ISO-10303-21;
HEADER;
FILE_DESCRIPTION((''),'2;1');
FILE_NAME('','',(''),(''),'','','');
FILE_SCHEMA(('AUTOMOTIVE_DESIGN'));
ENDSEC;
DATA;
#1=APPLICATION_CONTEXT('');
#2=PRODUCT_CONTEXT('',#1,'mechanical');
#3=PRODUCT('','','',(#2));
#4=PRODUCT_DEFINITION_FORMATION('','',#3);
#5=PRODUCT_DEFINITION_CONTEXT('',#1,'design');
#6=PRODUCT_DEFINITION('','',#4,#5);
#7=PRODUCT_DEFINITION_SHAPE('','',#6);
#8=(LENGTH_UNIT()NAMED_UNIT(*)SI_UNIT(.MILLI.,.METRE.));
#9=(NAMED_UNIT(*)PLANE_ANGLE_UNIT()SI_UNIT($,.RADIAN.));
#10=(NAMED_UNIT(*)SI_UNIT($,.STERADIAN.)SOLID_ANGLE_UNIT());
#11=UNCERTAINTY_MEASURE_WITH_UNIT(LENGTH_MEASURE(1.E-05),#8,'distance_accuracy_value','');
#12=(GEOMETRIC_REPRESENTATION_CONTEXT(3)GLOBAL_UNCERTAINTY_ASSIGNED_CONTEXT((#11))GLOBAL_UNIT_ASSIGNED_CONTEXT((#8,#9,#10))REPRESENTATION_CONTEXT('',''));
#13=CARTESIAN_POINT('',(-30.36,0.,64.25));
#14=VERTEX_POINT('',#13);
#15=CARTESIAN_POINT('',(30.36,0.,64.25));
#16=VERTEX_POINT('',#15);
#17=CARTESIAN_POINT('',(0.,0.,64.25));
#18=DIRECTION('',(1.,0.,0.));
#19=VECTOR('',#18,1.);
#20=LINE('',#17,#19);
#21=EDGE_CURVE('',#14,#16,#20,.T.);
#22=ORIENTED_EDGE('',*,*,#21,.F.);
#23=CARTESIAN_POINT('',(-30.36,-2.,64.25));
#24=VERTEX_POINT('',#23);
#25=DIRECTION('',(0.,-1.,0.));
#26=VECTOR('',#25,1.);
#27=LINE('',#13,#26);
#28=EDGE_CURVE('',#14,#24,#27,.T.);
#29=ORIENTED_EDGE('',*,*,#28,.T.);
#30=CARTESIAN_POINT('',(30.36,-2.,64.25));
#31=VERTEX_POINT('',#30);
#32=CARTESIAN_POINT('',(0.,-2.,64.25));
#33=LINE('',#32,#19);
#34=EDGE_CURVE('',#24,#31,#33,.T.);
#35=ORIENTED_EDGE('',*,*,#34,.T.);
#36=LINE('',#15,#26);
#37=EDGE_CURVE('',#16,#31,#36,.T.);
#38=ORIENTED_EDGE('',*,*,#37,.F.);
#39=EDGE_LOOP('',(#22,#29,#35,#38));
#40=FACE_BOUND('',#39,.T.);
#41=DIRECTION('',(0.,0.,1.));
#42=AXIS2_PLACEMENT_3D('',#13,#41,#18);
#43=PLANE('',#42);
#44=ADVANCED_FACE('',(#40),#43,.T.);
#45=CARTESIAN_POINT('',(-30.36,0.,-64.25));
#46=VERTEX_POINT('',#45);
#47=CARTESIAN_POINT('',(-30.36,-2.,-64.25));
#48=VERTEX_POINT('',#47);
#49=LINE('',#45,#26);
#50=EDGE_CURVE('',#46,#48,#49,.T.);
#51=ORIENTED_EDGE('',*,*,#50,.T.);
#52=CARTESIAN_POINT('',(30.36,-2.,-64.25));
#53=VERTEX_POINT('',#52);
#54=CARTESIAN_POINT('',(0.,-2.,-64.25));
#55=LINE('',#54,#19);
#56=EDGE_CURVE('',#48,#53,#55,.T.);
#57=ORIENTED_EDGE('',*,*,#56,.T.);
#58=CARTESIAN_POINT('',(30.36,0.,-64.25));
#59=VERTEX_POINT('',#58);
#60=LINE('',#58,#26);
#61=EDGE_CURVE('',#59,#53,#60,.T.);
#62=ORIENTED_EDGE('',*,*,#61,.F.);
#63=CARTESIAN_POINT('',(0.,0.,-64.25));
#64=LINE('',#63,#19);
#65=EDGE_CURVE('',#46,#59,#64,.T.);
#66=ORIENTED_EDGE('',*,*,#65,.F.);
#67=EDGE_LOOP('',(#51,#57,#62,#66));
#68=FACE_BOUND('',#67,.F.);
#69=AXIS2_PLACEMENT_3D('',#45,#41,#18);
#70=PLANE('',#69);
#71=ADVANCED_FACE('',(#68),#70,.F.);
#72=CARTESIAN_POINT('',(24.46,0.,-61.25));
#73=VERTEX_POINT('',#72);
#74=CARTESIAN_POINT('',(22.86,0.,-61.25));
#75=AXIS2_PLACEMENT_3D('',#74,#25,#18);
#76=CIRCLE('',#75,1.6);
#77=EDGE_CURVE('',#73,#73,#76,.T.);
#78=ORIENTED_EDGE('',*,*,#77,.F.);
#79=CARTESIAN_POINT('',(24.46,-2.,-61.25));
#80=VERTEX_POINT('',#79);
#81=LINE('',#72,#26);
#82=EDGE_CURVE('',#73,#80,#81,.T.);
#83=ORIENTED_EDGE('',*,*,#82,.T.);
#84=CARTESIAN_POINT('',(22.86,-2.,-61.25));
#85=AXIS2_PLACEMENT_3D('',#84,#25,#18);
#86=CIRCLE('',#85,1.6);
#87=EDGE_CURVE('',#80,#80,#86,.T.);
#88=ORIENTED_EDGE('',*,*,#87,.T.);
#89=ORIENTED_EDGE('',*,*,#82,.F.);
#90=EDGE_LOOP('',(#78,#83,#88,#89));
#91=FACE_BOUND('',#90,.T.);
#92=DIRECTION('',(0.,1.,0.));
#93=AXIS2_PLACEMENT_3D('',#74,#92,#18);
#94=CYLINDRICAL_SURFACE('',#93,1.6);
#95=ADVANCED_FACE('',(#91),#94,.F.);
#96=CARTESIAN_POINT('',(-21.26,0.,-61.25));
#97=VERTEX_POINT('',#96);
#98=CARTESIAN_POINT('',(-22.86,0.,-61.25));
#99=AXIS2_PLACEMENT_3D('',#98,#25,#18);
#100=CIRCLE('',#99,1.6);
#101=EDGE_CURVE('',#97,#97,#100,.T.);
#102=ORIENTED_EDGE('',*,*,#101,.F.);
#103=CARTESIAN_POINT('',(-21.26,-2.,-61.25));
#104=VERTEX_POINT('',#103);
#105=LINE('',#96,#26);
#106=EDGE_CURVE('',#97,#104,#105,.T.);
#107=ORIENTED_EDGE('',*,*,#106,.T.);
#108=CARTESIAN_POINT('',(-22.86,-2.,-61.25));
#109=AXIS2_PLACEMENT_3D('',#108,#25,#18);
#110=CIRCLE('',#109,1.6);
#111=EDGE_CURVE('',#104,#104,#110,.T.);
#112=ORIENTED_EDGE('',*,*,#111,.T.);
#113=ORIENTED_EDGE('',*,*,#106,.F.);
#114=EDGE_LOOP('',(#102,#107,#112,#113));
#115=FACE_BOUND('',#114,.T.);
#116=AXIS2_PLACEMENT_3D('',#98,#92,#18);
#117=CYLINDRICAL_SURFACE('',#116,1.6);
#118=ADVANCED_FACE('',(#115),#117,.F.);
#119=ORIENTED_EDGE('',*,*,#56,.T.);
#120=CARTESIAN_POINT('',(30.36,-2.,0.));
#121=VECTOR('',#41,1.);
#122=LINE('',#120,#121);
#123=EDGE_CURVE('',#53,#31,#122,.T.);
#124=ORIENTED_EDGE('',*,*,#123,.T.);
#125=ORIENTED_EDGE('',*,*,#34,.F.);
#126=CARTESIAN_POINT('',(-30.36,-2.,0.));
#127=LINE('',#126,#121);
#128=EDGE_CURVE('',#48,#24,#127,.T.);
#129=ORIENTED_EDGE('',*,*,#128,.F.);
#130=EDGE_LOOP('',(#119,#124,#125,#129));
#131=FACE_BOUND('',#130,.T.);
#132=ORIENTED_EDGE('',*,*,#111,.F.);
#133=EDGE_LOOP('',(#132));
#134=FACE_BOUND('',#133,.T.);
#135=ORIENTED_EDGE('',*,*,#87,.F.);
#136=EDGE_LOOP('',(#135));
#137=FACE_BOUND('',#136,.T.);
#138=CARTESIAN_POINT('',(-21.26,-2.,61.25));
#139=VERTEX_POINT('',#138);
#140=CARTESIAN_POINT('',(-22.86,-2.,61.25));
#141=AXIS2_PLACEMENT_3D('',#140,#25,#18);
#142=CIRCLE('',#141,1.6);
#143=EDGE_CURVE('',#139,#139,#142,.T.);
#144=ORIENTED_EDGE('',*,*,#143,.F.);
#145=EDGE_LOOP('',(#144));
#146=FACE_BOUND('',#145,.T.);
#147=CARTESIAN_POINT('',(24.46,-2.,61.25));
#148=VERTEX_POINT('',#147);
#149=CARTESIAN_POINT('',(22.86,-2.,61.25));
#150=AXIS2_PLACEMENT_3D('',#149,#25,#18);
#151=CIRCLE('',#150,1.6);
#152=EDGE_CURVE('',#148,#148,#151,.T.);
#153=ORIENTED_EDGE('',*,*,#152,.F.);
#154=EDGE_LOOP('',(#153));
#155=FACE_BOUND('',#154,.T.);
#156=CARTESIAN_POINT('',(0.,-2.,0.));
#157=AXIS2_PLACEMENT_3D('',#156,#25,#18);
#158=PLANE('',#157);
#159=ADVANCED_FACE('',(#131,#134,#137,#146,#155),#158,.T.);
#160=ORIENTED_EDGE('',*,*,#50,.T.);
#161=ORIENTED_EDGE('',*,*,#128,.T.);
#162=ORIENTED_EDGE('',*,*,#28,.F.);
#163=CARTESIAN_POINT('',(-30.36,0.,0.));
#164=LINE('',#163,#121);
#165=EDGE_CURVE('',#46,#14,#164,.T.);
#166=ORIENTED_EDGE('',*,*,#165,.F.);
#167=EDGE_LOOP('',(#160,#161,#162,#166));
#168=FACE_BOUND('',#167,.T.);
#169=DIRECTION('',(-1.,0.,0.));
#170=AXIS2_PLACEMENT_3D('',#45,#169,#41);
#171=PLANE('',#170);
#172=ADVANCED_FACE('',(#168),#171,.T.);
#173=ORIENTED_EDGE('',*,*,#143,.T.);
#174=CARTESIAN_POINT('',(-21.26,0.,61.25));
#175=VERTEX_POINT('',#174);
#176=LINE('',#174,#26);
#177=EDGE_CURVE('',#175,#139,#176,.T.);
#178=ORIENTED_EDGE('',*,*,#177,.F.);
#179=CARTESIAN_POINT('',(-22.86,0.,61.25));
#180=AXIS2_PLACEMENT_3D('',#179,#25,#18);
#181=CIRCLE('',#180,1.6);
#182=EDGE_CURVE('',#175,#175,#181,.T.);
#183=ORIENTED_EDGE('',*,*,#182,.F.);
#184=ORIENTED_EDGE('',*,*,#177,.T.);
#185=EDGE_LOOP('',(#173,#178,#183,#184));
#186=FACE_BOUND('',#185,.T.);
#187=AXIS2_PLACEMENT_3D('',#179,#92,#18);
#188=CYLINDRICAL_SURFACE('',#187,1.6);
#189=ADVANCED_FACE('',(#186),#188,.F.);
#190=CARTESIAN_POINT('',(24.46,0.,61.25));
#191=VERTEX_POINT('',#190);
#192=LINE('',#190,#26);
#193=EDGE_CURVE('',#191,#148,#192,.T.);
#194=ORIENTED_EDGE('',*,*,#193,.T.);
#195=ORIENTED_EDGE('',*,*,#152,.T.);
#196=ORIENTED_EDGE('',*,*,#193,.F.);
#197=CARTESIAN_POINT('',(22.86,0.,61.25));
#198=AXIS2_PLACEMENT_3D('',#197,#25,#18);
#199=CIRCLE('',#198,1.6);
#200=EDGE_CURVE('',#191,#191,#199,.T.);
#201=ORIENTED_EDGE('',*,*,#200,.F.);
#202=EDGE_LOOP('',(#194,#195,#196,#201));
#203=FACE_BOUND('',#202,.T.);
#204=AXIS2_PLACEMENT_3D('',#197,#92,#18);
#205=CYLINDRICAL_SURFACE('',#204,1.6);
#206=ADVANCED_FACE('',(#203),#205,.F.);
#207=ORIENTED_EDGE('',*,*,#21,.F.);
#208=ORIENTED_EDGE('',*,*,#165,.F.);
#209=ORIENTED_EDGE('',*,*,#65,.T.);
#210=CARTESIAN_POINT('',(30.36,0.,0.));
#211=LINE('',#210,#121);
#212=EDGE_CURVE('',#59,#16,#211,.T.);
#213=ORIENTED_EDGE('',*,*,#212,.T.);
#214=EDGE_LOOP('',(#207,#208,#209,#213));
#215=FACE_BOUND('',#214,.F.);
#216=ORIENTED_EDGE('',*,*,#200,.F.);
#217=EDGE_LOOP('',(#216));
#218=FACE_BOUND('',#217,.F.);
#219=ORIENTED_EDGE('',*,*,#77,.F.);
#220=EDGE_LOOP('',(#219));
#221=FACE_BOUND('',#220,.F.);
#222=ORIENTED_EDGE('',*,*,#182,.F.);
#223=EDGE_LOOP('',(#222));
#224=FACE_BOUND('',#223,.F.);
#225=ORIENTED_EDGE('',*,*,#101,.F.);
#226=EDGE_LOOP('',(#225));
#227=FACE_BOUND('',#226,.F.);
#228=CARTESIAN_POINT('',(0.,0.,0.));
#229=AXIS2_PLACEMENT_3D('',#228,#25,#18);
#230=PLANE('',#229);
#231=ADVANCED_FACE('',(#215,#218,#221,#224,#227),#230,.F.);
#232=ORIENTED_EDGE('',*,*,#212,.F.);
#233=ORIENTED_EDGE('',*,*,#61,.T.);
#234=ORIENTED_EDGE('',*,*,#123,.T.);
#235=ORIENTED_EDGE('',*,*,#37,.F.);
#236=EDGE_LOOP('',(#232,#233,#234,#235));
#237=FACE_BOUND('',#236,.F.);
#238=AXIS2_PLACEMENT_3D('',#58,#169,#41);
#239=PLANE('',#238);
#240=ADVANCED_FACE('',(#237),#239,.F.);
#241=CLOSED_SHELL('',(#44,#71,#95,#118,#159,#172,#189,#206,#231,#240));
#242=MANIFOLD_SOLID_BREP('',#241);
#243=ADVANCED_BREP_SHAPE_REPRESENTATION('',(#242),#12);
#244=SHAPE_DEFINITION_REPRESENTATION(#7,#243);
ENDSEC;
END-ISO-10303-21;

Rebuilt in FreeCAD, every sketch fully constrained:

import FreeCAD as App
import Part
import Sketcher

V = App.Vector
Q = App.Units.Quantity


def add_polygon(sketch, points):
    """Adds a closed chain of lines whose ends are joined by coincident constraints."""
    first, n = sketch.GeometryCount, len(points)
    for a, b in zip(points, points[1:] + points[:1]):
        sketch.addGeometry(Part.LineSegment(App.Vector(*a, 0), App.Vector(*b, 0)), False)
    for i in range(n):
        sketch.addConstraint(Sketcher.Constraint("Coincident", first + i, 2, first + (i + 1) % n, 1))

doc = App.newDocument("Part")
params = doc.addObject("Spreadsheet::Sheet", "Params")
for row, (alias, value) in enumerate([
    ("sketch1_diameter", "3.2 mm"),
    ("sketch1_height", "128.5 mm"),
    ("sketch1_width", "60.72 mm"),
    ("pad1_length", "2 mm"),
], start=1):
    params.set(f"A{row}", alias)
    params.set(f"B{row}", "=" + value)
    params.setAlias(f"B{row}", alias)

body = doc.addObject("PartDesign::Body", "Body")

# Sketch on XZ plane
sketch1 = doc.addObject("Sketcher::SketchObject", "Sketch")
body.addObject(sketch1)
sketch1.AttachmentSupport = (doc.XZ_Plane, [""])
sketch1.MapMode = "FlatFace"
add_polygon(sketch1, [(-30.4, 64.2), (-30.4, -64.2), (30.4, -64.2), (30.4, 64.2)])  # lines 0-3
sketch1.addGeometry(Part.Circle(V(-22.9, -61.2, 0), V(0, 0, 1), 1.6), False)  # 4
sketch1.addGeometry(Part.Circle(V(22.9, -61.2, 0), V(0, 0, 1), 1.6), False)  # 5
sketch1.addGeometry(Part.Circle(V(-22.9, 61.2, 0), V(0, 0, 1), 1.6), False)  # 6
sketch1.addGeometry(Part.Circle(V(22.9, 61.2, 0), V(0, 0, 1), 1.6), False)  # 7
sketch1.addConstraint(Sketcher.Constraint("Vertical", 0))
sketch1.addConstraint(Sketcher.Constraint("Horizontal", 1))
sketch1.addConstraint(Sketcher.Constraint("Vertical", 2))
sketch1.addConstraint(Sketcher.Constraint("Horizontal", 3))
sketch1.addConstraint(Sketcher.Constraint("Equal", 4, 5))
sketch1.addConstraint(Sketcher.Constraint("Equal", 5, 6))
sketch1.addConstraint(Sketcher.Constraint("Equal", 6, 7))
sketch1.addConstraint(Sketcher.Constraint("Symmetric", 5, 3, 6, 3, -1, 1))
sketch1.addConstraint(Sketcher.Constraint("Symmetric", 4, 3, 7, 3, -1, 1))
sketch1.addConstraint(Sketcher.Constraint("Symmetric", 0, 2, 2, 2, -1, 1))
sketch1.addConstraint(Sketcher.Constraint("Symmetric", 4, 3, 5, 3, -2))
sketch1.addConstraint(Sketcher.Constraint("Diameter", 4, Q("3.2 mm")))
sketch1.addConstraint(Sketcher.Constraint("DistanceY", 0, 2, 0, 1, Q("128.5 mm")))
sketch1.addConstraint(Sketcher.Constraint("DistanceY", 0, 2, 4, 3, Q("3 mm")))
sketch1.addConstraint(Sketcher.Constraint("DistanceX", 1, 1, 1, 2, Q("60.72 mm")))
sketch1.addConstraint(Sketcher.Constraint("DistanceX", 0, 2, 4, 3, Q("7.5 mm")))
sketch1.setExpression("Constraints[15]", "Params.sketch1_diameter")
sketch1.setExpression("Constraints[16]", "Params.sketch1_height")
sketch1.setExpression("Constraints[18]", "Params.sketch1_width")
pad1 = doc.addObject("PartDesign::Pad", "Pad")
body.addObject(pad1)
pad1.Profile = sketch1
pad1.setExpression("Length", "Params.pad1_length")

doc.recompute()
